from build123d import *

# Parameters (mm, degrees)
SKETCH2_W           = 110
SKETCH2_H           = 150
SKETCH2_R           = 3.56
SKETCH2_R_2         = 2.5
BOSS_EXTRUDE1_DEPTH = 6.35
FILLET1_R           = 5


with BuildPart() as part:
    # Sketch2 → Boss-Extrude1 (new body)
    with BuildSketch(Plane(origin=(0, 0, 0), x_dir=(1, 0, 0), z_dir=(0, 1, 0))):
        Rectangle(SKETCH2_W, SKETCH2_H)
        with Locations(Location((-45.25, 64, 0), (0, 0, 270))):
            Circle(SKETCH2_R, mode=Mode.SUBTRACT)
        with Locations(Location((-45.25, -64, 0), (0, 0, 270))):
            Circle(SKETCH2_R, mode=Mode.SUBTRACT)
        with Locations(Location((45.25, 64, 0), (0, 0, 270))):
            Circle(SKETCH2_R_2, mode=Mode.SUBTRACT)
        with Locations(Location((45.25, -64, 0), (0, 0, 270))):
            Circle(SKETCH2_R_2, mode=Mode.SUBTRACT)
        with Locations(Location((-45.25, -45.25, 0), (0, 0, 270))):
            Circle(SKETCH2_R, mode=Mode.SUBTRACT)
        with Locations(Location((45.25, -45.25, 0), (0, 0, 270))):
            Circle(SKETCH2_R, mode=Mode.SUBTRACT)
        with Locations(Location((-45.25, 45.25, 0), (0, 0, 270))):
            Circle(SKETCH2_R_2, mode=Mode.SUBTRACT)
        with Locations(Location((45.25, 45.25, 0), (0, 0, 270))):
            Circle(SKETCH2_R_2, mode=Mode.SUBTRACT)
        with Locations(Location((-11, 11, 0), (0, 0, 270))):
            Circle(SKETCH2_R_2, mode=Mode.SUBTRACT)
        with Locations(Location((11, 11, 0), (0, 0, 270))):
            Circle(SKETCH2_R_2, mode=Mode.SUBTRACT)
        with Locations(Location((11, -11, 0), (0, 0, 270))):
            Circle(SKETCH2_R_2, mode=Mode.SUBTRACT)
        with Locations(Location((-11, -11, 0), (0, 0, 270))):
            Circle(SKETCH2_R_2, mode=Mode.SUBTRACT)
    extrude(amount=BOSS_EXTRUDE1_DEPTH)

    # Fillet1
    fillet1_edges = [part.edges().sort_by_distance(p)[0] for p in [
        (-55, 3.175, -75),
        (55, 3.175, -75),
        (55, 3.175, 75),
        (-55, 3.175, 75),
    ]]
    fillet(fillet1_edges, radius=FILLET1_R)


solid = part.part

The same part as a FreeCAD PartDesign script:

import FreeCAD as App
import Part
import Sketcher
Q = App.Units.Quantity


def edges_at(feature, points):
    """Names of the edges that pass closest to the given points."""
    edges = feature.Shape.Edges
    near = lambda p: min(range(len(edges)), key=lambda i: edges[i].distToShape(Part.Vertex(*p))[0])
    return sorted({f"Edge{near(p) + 1}" for p in points})


def add_polygon(sketch, points):
    """Adds a closed chain of lines whose ends are joined by coincident constraints."""
    first, n = sketch.GeometryCount, len(points)
    for a, b in zip(points, points[1:] + points[:1]):
        sketch.addGeometry(Part.LineSegment(App.Vector(*a, 0), App.Vector(*b, 0)), False)
    for i in range(n):
        sketch.addConstraint(Sketcher.Constraint("Coincident", first + i, 2, first + (i + 1) % n, 1))

doc = App.newDocument("Part")
body = doc.addObject("PartDesign::Body", "Body")

sketch1 = body.newObject("Sketcher::SketchObject", "Sketch")
sketch1.AttachmentSupport = (doc.getObject("XZ_Plane"), [""])
sketch1.MapMode = "FlatFace"
add_polygon(sketch1, [(-55, -75), (-55, 75), (55, 75), (55, -75)])
sketch1.addGeometry(Part.Circle(App.Vector(-45.2, 64, 0), App.Vector(0, 0, 1), 3.6), False)
sketch1.addGeometry(Part.Circle(App.Vector(-45.2, 45.2, 0), App.Vector(0, 0, 1), 3.6), False)
sketch1.addGeometry(Part.Circle(App.Vector(-11, 11, 0), App.Vector(0, 0, 1), 2.5), False)
sketch1.addGeometry(Part.Circle(App.Vector(45.2, 64, 0), App.Vector(0, 0, 1), 2.5), False)
sketch1.addGeometry(Part.Circle(App.Vector(45.2, 45.2, 0), App.Vector(0, 0, 1), 3.6), False)
sketch1.addGeometry(Part.Circle(App.Vector(11, 11, 0), App.Vector(0, 0, 1), 2.5), False)
sketch1.addGeometry(Part.Circle(App.Vector(-11, -11, 0), App.Vector(0, 0, 1), 2.5), False)
sketch1.addGeometry(Part.Circle(App.Vector(-45.2, -45.2, 0), App.Vector(0, 0, 1), 2.5), False)
sketch1.addGeometry(Part.Circle(App.Vector(-45.2, -64, 0), App.Vector(0, 0, 1), 3.6), False)
sketch1.addGeometry(Part.Circle(App.Vector(11, -11, 0), App.Vector(0, 0, 1), 2.5), False)
sketch1.addGeometry(Part.Circle(App.Vector(45.2, -45.2, 0), App.Vector(0, 0, 1), 2.5), False)
sketch1.addGeometry(Part.Circle(App.Vector(45.2, -64, 0), App.Vector(0, 0, 1), 2.5), False)
sketch1.addConstraint(Sketcher.Constraint("Vertical", 0))
sketch1.addConstraint(Sketcher.Constraint("Horizontal", 1))
sketch1.addConstraint(Sketcher.Constraint("Vertical", 2))
sketch1.addConstraint(Sketcher.Constraint("Horizontal", 3))
sketch1.addConstraint(Sketcher.Constraint("Equal", 4, 5))
sketch1.addConstraint(Sketcher.Constraint("Equal", 6, 7))
sketch1.addConstraint(Sketcher.Constraint("Equal", 5, 8))
sketch1.addConstraint(Sketcher.Constraint("Equal", 7, 9))
sketch1.addConstraint(Sketcher.Constraint("Equal", 9, 10))
sketch1.addConstraint(Sketcher.Constraint("Equal", 10, 11))
sketch1.addConstraint(Sketcher.Constraint("Equal", 8, 12))
sketch1.addConstraint(Sketcher.Constraint("Equal", 11, 13))
sketch1.addConstraint(Sketcher.Constraint("Equal", 13, 14))
sketch1.addConstraint(Sketcher.Constraint("Equal", 14, 15))
sketch1.addConstraint(Sketcher.Constraint("Symmetric", 9, 3, 10, 3, -1, 1))
sketch1.addConstraint(Sketcher.Constraint("Symmetric", 8, 3, 11, 3, -1, 1))
sketch1.addConstraint(Sketcher.Constraint("Symmetric", 7, 3, 12, 3, -1, 1))
sketch1.addConstraint(Sketcher.Constraint("Symmetric", 6, 3, 13, 3, -1, 1))
sketch1.addConstraint(Sketcher.Constraint("Symmetric", 5, 3, 14, 3, -1, 1))
sketch1.addConstraint(Sketcher.Constraint("Symmetric", 4, 3, 15, 3, -1, 1))
sketch1.addConstraint(Sketcher.Constraint("Symmetric", 0, 2, 2, 2, -1, 1))
sketch1.addConstraint(Sketcher.Constraint("Symmetric", 4, 3, 7, 3, -2))
sketch1.addConstraint(Sketcher.Constraint("Symmetric", 5, 3, 8, 3, -2))
sketch1.addConstraint(Sketcher.Constraint("Symmetric", 6, 3, 9, 3, -2))
sketch1.addConstraint(Sketcher.Constraint("Vertical", 4, 3, 5, 3))
sketch1.addConstraint(Sketcher.Constraint("Diameter", 6, Q("5 mm")))
sketch1.addConstraint(Sketcher.Constraint("Diameter", 4, Q("7.12 mm")))
sketch1.addConstraint(Sketcher.Constraint("DistanceX", 1, 1, 1, 2, Q("110 mm")))
sketch1.addConstraint(Sketcher.Constraint("DistanceY", 0, 1, 0, 2, Q("150 mm")))
sketch1.addConstraint(Sketcher.Constraint("DistanceY", -1, 1, 4, 3, Q("64 mm")))
sketch1.addConstraint(Sketcher.Constraint("DistanceX", 6, 3, -1, 1, Q("11 mm")))
sketch1.addConstraint(Sketcher.Constraint("DistanceY", -1, 1, 6, 3, Q("11 mm")))
sketch1.addConstraint(Sketcher.Constraint("DistanceX", 4, 3, 7, 3, Q("90.5 mm")))
sketch1.addConstraint(Sketcher.Constraint("DistanceY", 11, 3, 5, 3, Q("90.5 mm")))
pad1 = body.newObject("PartDesign::Pad", "Pad")
pad1.Profile = sketch1
pad1.Length = 6.35
pad1.Reversed = True
doc.recompute()

fillet = body.newObject("PartDesign::Fillet", "Fillet")
fillet.Base = (pad1, edges_at(pad1, [
    (-55, 3.175, -75),
    (55, 3.175, -75),
    (55, 3.175, 75),
    (-55, 3.175, 75),
]))
fillet.Radius = 5

doc.recompute()
